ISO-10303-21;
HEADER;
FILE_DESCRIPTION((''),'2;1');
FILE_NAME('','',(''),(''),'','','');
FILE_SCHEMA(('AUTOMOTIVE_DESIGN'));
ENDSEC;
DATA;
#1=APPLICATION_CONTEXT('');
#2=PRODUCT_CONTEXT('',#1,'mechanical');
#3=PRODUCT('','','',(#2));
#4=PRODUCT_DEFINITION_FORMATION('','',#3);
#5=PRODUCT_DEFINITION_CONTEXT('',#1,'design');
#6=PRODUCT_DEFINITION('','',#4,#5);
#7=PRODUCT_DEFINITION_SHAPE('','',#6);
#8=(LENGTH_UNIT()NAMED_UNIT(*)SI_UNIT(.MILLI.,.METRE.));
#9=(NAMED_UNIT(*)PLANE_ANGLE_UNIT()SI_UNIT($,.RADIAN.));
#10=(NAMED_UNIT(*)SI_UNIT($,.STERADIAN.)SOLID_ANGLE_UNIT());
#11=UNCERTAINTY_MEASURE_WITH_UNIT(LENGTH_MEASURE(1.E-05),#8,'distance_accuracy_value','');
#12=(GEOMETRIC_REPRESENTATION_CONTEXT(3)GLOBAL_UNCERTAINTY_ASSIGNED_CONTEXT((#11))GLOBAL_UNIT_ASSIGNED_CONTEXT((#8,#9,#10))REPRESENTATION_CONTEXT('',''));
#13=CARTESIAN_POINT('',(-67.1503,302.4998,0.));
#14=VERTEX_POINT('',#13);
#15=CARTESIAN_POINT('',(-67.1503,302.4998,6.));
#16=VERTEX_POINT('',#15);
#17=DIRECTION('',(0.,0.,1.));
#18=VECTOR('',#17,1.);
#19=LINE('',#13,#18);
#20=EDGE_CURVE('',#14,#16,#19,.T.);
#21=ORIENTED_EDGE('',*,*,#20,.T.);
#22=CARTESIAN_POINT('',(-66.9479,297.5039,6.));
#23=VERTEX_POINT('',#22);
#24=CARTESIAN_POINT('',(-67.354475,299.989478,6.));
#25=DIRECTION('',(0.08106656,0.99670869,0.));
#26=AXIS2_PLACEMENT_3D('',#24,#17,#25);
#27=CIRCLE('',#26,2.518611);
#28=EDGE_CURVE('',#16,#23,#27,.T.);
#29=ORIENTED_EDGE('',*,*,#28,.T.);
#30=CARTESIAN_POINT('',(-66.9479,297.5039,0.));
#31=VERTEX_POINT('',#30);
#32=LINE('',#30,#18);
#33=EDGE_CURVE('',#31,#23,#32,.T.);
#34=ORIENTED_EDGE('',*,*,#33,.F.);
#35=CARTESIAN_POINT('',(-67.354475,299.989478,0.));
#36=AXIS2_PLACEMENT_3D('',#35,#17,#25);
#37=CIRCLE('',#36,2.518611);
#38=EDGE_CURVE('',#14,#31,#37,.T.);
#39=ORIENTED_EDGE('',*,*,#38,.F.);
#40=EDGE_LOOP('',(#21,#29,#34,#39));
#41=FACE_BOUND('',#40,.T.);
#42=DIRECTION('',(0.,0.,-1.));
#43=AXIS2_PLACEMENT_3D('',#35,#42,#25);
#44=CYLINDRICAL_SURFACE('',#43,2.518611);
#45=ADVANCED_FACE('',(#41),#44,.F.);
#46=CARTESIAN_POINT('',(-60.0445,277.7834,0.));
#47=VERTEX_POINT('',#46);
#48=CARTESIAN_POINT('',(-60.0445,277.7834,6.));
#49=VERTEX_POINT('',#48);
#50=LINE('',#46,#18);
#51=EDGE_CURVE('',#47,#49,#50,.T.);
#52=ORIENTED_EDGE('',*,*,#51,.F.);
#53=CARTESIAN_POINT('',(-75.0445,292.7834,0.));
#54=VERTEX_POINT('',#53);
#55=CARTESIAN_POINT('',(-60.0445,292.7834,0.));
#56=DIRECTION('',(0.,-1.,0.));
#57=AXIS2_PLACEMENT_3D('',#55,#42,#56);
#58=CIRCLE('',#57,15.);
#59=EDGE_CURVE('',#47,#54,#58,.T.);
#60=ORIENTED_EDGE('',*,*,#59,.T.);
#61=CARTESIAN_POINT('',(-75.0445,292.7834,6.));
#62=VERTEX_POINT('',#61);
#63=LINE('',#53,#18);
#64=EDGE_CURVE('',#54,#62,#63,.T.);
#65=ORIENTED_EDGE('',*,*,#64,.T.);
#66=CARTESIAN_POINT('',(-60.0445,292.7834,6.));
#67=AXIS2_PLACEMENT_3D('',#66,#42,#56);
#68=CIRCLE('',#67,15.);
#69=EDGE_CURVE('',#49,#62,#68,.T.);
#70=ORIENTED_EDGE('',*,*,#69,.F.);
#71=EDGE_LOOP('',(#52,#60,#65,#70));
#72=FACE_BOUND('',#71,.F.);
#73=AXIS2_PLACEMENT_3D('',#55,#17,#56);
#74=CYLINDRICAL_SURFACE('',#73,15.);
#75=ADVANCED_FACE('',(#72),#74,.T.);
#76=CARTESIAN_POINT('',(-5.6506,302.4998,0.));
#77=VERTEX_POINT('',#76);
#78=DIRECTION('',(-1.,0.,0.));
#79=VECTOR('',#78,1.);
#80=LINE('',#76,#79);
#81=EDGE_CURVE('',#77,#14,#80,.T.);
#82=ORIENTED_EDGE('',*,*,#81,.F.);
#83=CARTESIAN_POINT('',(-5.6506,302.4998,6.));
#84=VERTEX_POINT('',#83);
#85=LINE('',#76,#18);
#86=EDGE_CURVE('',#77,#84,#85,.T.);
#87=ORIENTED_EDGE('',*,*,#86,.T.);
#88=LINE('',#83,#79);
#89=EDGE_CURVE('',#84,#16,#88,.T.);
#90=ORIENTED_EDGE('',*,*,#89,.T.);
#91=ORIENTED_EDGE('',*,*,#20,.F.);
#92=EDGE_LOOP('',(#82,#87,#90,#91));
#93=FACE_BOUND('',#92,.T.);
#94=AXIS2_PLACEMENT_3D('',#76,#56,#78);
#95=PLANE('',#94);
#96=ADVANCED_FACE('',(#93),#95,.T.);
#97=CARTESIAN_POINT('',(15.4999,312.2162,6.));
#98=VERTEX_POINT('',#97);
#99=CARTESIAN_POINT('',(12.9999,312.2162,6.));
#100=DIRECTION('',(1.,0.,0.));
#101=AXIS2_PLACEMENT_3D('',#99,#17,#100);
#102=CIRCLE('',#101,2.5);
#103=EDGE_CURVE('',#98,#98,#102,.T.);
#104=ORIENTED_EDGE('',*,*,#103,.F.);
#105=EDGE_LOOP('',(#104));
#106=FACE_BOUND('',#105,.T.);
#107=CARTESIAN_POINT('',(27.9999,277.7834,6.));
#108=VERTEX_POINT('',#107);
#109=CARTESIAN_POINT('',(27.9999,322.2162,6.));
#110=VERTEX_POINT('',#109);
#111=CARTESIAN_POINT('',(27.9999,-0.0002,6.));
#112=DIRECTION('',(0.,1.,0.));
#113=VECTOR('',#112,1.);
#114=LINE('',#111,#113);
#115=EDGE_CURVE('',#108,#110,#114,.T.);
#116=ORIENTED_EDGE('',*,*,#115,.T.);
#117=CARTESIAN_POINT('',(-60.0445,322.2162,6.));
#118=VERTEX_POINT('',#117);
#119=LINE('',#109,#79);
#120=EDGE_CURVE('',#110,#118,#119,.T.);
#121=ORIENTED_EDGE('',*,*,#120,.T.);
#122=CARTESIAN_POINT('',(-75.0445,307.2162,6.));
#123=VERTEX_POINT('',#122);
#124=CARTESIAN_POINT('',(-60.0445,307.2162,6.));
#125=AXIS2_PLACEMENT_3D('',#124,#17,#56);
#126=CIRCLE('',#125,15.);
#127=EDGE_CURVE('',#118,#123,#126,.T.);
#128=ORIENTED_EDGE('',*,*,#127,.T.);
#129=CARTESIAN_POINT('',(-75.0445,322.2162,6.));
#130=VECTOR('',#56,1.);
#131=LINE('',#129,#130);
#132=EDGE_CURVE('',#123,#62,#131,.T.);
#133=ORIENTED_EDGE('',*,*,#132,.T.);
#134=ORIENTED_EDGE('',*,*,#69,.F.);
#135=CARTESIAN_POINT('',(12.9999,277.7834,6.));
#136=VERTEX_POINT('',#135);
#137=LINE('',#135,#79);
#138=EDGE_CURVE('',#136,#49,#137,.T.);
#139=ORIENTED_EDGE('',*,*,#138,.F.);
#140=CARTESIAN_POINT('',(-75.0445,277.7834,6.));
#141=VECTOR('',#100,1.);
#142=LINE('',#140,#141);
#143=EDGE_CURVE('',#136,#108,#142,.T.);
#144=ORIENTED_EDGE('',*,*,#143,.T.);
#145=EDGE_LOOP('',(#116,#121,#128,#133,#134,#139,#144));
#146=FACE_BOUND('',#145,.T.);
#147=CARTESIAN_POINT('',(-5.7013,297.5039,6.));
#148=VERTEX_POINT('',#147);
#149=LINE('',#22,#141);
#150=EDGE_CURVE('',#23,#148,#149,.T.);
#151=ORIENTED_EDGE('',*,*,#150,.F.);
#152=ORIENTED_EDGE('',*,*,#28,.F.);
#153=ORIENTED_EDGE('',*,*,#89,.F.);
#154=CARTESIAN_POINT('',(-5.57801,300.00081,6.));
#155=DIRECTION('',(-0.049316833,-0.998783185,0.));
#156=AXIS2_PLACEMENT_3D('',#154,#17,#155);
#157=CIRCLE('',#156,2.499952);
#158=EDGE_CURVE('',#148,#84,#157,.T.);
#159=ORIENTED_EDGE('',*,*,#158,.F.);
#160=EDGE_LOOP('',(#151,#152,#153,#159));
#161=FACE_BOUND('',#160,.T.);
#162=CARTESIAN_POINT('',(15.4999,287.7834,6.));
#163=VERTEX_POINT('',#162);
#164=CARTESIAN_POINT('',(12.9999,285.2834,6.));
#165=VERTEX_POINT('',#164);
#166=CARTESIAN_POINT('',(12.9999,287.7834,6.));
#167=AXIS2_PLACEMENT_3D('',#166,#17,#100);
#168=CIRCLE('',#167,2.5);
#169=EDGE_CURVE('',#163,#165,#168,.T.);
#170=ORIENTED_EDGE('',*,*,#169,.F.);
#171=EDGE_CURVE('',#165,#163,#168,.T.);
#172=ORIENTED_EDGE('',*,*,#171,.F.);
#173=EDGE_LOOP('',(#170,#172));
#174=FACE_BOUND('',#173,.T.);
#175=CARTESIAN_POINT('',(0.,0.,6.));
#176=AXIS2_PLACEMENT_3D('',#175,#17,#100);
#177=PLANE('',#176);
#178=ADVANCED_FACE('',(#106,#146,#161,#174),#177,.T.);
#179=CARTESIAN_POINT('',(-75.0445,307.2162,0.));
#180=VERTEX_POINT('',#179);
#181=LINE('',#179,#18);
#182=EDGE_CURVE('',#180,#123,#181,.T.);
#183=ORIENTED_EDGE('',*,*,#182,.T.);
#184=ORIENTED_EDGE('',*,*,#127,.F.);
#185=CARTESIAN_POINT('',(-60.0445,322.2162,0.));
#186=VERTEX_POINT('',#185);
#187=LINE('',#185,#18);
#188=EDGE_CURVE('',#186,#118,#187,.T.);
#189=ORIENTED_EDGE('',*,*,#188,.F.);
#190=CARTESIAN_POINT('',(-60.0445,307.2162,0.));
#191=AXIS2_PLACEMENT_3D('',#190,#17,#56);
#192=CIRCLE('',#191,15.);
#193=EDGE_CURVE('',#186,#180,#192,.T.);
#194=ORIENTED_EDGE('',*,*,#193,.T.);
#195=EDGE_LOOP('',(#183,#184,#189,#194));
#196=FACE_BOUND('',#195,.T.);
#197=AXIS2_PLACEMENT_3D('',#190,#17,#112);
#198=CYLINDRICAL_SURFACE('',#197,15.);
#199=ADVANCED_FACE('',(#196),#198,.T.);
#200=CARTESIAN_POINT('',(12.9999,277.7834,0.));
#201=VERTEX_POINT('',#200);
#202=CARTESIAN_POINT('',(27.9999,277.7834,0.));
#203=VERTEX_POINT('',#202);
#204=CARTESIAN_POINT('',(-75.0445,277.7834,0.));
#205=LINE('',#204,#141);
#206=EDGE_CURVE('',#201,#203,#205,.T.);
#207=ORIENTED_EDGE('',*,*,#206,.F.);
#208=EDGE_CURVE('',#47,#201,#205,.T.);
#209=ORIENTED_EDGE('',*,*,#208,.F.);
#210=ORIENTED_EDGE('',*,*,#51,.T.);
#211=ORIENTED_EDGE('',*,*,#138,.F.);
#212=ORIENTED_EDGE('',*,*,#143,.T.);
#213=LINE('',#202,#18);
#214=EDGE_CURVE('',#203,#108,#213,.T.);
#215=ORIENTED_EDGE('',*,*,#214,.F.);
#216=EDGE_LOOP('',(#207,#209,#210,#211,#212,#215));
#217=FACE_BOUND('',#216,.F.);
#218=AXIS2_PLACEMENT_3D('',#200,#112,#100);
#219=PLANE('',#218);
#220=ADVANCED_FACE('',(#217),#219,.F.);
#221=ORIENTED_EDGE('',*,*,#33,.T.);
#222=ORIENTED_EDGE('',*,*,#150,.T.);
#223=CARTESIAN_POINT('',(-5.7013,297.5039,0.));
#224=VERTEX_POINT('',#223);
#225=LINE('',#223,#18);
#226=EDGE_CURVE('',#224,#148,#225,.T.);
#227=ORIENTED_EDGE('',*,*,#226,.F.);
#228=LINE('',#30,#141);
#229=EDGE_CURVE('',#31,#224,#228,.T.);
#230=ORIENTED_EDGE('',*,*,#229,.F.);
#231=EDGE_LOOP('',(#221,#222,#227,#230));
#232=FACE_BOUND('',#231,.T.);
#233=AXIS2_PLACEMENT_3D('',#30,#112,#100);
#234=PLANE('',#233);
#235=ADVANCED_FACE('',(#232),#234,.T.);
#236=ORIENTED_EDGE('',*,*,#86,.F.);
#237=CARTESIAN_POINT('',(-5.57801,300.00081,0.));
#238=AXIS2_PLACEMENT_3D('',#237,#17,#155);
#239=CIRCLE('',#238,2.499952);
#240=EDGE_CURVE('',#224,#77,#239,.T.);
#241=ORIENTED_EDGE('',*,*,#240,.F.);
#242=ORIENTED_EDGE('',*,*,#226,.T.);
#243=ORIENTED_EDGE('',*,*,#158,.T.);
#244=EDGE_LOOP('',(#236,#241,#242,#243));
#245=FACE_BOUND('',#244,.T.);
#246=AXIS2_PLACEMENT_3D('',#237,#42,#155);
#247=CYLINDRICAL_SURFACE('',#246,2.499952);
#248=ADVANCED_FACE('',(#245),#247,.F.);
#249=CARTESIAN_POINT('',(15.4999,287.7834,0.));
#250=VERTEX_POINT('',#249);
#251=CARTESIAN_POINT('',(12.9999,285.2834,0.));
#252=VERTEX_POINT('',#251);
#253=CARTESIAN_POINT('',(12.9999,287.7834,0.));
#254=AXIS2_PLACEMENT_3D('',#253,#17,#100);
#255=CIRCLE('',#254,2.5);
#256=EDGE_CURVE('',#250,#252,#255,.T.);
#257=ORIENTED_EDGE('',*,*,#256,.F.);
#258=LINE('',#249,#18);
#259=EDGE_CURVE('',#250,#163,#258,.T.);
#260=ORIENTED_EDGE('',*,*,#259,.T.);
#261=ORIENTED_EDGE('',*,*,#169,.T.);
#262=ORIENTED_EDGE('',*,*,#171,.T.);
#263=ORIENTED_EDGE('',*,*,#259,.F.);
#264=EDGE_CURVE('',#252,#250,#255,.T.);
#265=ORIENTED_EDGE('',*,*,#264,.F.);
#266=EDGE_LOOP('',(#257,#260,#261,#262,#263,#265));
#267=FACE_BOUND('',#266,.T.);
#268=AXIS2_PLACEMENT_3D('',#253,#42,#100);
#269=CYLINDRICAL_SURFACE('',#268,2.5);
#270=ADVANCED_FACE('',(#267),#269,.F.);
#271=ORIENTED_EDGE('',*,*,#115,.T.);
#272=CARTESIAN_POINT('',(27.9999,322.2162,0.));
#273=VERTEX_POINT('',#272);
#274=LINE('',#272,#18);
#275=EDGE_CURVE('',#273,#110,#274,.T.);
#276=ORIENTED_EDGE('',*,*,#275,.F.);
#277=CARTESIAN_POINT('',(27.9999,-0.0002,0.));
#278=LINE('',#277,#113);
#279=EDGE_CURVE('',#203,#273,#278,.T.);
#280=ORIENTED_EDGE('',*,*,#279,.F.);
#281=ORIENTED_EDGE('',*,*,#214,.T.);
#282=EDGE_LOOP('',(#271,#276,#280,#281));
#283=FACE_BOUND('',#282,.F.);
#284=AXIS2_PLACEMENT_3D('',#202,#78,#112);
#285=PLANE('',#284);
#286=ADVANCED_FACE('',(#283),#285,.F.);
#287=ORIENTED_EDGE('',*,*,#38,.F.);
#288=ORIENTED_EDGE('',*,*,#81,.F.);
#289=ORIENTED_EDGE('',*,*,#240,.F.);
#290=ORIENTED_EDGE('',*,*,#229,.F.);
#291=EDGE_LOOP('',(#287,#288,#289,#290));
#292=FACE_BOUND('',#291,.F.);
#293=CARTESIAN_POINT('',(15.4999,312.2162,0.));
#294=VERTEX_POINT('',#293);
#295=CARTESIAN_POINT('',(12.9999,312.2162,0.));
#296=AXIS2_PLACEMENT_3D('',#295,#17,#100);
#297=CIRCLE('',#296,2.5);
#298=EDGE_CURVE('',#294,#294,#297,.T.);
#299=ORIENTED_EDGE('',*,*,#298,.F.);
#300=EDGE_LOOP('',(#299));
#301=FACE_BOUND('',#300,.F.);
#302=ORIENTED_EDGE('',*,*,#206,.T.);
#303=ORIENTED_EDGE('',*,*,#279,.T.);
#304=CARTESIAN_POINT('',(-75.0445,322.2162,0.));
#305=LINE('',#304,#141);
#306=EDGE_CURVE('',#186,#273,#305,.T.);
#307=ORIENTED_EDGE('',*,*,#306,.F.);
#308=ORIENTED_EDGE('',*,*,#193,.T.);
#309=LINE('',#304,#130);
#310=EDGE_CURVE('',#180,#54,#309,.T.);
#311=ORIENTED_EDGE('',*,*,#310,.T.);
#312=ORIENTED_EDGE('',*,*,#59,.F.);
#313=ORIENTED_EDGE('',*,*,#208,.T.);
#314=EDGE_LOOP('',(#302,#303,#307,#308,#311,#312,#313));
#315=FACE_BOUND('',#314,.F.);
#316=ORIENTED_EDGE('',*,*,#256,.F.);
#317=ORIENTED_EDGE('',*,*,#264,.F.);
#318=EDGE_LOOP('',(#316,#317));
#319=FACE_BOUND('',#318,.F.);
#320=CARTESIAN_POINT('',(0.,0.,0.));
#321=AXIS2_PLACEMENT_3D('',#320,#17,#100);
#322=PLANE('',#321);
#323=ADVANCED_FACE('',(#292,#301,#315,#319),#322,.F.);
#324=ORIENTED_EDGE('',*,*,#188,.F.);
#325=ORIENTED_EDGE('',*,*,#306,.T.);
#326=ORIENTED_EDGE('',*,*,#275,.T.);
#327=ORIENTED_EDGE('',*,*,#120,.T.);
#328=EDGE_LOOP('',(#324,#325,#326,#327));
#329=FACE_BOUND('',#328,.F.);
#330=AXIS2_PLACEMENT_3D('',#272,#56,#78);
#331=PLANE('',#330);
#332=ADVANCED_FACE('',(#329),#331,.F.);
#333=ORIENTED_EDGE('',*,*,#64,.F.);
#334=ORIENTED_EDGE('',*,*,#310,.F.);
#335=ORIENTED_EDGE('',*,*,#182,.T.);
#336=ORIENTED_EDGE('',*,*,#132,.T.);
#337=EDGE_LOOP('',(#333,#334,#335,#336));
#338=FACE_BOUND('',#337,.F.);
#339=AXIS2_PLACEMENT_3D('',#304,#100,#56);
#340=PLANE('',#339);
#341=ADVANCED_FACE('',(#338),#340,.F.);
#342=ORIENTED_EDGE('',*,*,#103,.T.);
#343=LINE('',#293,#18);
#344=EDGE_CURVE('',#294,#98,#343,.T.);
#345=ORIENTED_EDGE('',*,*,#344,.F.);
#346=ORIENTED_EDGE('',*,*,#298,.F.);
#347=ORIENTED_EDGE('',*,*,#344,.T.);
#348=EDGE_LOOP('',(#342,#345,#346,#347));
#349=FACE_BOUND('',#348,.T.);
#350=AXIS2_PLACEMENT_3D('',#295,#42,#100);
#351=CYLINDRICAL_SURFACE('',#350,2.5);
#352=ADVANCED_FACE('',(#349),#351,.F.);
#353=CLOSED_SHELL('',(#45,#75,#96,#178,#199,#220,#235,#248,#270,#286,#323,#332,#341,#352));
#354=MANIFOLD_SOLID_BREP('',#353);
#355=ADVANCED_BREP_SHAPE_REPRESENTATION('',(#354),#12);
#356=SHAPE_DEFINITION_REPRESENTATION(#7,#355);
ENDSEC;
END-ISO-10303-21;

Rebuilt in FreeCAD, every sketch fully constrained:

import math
import FreeCAD as App
import Part
import Sketcher
Q = App.Units.Quantity


def edges_at(feature, points):
    """Names of the edges that pass closest to the given points."""
    edges = feature.Shape.Edges
    near = lambda p: min(range(len(edges)), key=lambda i: edges[i].distToShape(Part.Vertex(*p))[0])
    return sorted({f"Edge{near(p) + 1}" for p in points})


def add_polygon(sketch, points):
    """Adds a closed chain of lines whose ends are joined by coincident constraints."""
    first, n = sketch.GeometryCount, len(points)
    for a, b in zip(points, points[1:] + points[:1]):
        sketch.addGeometry(Part.LineSegment(App.Vector(*a, 0), App.Vector(*b, 0)), False)
    for i in range(n):
        sketch.addConstraint(Sketcher.Constraint("Coincident", first + i, 2, first + (i + 1) % n, 1))

doc = App.newDocument("Part")
params = doc.addObject("Spreadsheet::Sheet", "Params")
for row, (alias, value) in enumerate([
    ("sketch1_diameter", "5 mm"),
    ("sketch1_width", "15 mm"),
    ("pad1_length", "6 mm"),
    ("fillet_radius", "15 mm"),
], start=1):
    params.set(f"A{row}", alias)
    params.set(f"B{row}", "=" + value)
    params.setAlias(f"B{row}", alias)

body = doc.addObject("PartDesign::Body", "Body")

# Sketch on XY plane
sketch1 = body.newObject("Sketcher::SketchObject", "Sketch")
sketch1.AttachmentSupport = (doc.getObject("XY_Plane"), [""])
sketch1.MapMode = "FlatFace"
add_polygon(sketch1, [(12.9999, 277.7834), (27.9999, 277.7834), (27.9999, 322.2162), (-75.0445, 322.2162), (-75.0445, 277.7834)])  # lines 0-4
sketch1.addGeometry(Part.Circle(App.Vector(12.9999, 287.7834, 0), App.Vector(0, 0, 1), 2.5), False)  # 5
sketch1.addGeometry(Part.Circle(App.Vector(12.9999, 312.2162, 0), App.Vector(0, 0, 1), 2.5), False)  # 6
sketch1.addGeometry(Part.ArcOfCircle(Part.Circle(App.Vector(-5.578, 300.0008, 0), App.Vector(0, 0, 1), 2.499942), math.radians(-92.82704), math.radians(91.664067)), False)  # 7
sketch1.addGeometry(Part.LineSegment(App.Vector(-5.7013, 297.5039, 0), App.Vector(-66.9479, 297.5039, 0)), False)  # 8
sketch1.addGeometry(Part.ArcOfCircle(Part.Circle(App.Vector(-67.3544, 299.9894, 0), App.Vector(0, 0, 1), 2.518683), math.radians(85.351974), math.radians(279.28841)), False)  # 9
sketch1.addGeometry(Part.LineSegment(App.Vector(-67.1503, 302.4998, 0), App.Vector(-5.6506, 302.4998, 0)), False)  # 10
sketch1.addConstraint(Sketcher.Constraint("Coincident", 7, 1, 8, 1))
sketch1.addConstraint(Sketcher.Constraint("Coincident", 8, 2, 9, 2))
sketch1.addConstraint(Sketcher.Constraint("Coincident", 9, 1, 10, 1))
sketch1.addConstraint(Sketcher.Constraint("Coincident", 10, 2, 7, 2))
sketch1.addConstraint(Sketcher.Constraint("Horizontal", 0))
sketch1.addConstraint(Sketcher.Constraint("Vertical", 1))
sketch1.addConstraint(Sketcher.Constraint("Horizontal", 2))
sketch1.addConstraint(Sketcher.Constraint("Vertical", 3))
sketch1.addConstraint(Sketcher.Constraint("Horizontal", 4))
sketch1.addConstraint(Sketcher.Constraint("Horizontal", 8))
sketch1.addConstraint(Sketcher.Constraint("Horizontal", 10))
sketch1.addConstraint(Sketcher.Constraint("Equal", 5, 6))
sketch1.addConstraint(Sketcher.Constraint("Equal", 6, 7))
sketch1.addConstraint(Sketcher.Constraint("Vertical", 5, 3, 6, 3))
sketch1.addConstraint(Sketcher.Constraint("Vertical", 6, 3, 4, 2))
sketch1.addConstraint(Sketcher.Constraint("Diameter", 5, Q("5 mm")))
sketch1.addConstraint(Sketcher.Constraint("DistanceX", 0, 1, 0, 2, Q("15 mm")))
sketch1.addConstraint(Sketcher.Constraint("DistanceX", -1, 1, 5, 3, Q("13 mm")))
sketch1.addConstraint(Sketcher.Constraint("DistanceY", 0, 2, 5, 3, Q("10 mm")))
sketch1.addConstraint(Sketcher.Constraint("DistanceY", 6, 3, 1, 2, Q("10 mm")))
sketch1.addConstraint(Sketcher.Constraint("Radius", 9, Q("2.5187 mm")))
sketch1.addConstraint(Sketcher.Constraint("DistanceX", 2, 2, 9, 3, Q("7.69 mm")))
sketch1.addConstraint(Sketcher.Constraint("DistanceX", 8, 2, 7, 3, Q("61.37 mm")))
sketch1.addConstraint(Sketcher.Constraint("DistanceX", 2, 2, 2, 1, Q("103.0444 mm")))
sketch1.addConstraint(Sketcher.Constraint("DistanceX", 8, 2, 8, 1, Q("61.2466 mm")))
sketch1.addConstraint(Sketcher.Constraint("DistanceX", 10, 1, 10, 2, Q("61.4997 mm")))
sketch1.addConstraint(Sketcher.Constraint("DistanceY", 1, 1, 1, 2, Q("44.4328 mm")))
sketch1.addConstraint(Sketcher.Constraint("DistanceX", 7, 3, -1, 1, Q("5.578 mm")))
sketch1.addConstraint(Sketcher.Constraint("DistanceY", -1, 1, 7, 1, Q("297.504 mm")))
sketch1.addConstraint(Sketcher.Constraint("DistanceY", 5, 3, 9, 3, Q("12.206 mm")))
sketch1.setExpression("Constraints[20]", "Params.sketch1_diameter")
sketch1.setExpression("Constraints[21]", "Params.sketch1_width")
pad1 = body.newObject("PartDesign::Pad", "Pad")
pad1.Profile = sketch1
pad1.setExpression("Length", "Params.pad1_length")
doc.recompute()

fillet = body.newObject("PartDesign::Fillet", "Fillet")
fillet.Base = (pad1, edges_at(pad1, [(-75.044, 277.783, 3), (-75.044, 322.216, 3)]))
fillet.setExpression("Radius", "Params.fillet_radius")

doc.recompute()
